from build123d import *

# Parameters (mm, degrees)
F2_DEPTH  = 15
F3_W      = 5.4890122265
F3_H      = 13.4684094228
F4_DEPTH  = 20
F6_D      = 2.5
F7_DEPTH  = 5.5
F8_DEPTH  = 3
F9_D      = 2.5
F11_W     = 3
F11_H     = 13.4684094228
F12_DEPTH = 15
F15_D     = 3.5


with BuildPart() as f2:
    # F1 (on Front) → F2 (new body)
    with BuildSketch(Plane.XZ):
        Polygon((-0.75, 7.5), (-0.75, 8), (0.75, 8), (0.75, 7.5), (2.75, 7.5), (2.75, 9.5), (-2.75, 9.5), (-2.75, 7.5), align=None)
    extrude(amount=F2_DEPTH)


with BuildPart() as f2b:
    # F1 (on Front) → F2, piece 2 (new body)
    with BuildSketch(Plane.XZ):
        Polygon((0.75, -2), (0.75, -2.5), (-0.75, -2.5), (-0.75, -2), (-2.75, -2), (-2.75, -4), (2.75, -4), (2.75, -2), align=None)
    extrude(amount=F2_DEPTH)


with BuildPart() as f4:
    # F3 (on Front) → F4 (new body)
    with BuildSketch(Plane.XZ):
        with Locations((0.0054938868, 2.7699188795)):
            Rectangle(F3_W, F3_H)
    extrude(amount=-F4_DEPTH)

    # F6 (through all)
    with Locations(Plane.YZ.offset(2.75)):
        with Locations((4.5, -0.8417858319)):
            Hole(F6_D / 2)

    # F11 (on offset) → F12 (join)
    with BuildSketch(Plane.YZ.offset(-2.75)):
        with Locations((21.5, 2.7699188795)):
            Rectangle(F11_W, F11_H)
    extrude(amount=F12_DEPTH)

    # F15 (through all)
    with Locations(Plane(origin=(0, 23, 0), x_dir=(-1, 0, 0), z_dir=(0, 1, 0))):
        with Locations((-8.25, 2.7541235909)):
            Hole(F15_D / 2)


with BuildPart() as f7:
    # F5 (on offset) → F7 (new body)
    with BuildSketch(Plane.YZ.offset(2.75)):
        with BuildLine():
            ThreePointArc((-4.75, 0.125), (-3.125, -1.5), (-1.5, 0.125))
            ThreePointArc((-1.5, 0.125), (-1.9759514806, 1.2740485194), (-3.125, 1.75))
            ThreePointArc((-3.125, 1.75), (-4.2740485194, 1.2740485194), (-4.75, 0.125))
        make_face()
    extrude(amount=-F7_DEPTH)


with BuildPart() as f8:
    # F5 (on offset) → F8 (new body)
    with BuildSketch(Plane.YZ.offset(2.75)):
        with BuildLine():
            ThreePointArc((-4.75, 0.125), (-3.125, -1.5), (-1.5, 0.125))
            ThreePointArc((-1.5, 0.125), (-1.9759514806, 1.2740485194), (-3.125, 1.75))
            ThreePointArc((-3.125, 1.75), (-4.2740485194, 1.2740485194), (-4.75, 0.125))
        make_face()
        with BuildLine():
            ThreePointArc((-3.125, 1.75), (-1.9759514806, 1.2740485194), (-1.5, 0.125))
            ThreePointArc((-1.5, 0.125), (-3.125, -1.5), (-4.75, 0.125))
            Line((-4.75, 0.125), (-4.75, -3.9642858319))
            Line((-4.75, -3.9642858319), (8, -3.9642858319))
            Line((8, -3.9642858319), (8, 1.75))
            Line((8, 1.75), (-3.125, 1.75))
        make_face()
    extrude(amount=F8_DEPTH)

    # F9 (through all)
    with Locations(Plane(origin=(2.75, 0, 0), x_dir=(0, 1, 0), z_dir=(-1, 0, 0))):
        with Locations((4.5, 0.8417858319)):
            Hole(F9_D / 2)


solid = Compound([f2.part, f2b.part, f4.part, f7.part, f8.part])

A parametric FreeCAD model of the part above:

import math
import FreeCAD as App
import Part
import Sketcher

V = App.Vector
Q = App.Units.Quantity


def add_polygon(sketch, points):
    """Adds a closed chain of lines whose ends are joined by coincident constraints."""
    first, n = sketch.GeometryCount, len(points)
    for a, b in zip(points, points[1:] + points[:1]):
        sketch.addGeometry(Part.LineSegment(App.Vector(*a, 0), App.Vector(*b, 0)), False)
    for i in range(n):
        sketch.addConstraint(Sketcher.Constraint("Coincident", first + i, 2, first + (i + 1) % n, 1))

doc = App.newDocument("Part")
body = doc.addObject("PartDesign::Body", "Body")

# Sketch on XZ plane
sketch1 = body.newObject("Sketcher::SketchObject", "Sketch")
sketch1.AttachmentSupport = (doc.getObject("XZ_Plane"), [""])
sketch1.MapMode = "FlatFace"
add_polygon(sketch1, [(-0.8, 7.5), (-0.8, 8), (0.8, 8), (0.8, 7.5), (2.8, 7.5), (2.8, 9.5), (-2.8, 9.5), (-2.8, 7.5)])  # lines 0-7
sketch1.addConstraint(Sketcher.Constraint("Vertical", 0))
sketch1.addConstraint(Sketcher.Constraint("Horizontal", 1))
sketch1.addConstraint(Sketcher.Constraint("Vertical", 2))
sketch1.addConstraint(Sketcher.Constraint("Horizontal", 3))
sketch1.addConstraint(Sketcher.Constraint("Vertical", 4))
sketch1.addConstraint(Sketcher.Constraint("Horizontal", 5))
sketch1.addConstraint(Sketcher.Constraint("Vertical", 6))
sketch1.addConstraint(Sketcher.Constraint("Horizontal", 7))
sketch1.addConstraint(Sketcher.Constraint("Symmetric", 3, 2, 6, 2, -2))
sketch1.addConstraint(Sketcher.Constraint("Equal", 3, 7))
sketch1.addConstraint(Sketcher.Constraint("Equal", 7, 4))
sketch1.addConstraint(Sketcher.Constraint("DistanceX", 3, 1, 3, 2, Q("2 mm")))
sketch1.addConstraint(Sketcher.Constraint("DistanceX", 1, 1, 1, 2, Q("1.5 mm")))
sketch1.addConstraint(Sketcher.Constraint("DistanceY", 0, 1, 0, 2, Q("0.5 mm")))
sketch1.addConstraint(Sketcher.Constraint("DistanceY", -1, 1, 0, 2, Q("8 mm")))
pad1 = body.newObject("PartDesign::Pad", "Pad")
pad1.Profile = sketch1
pad1.Length = 15
body2 = doc.addObject("PartDesign::Body", "Body001")

# Sketch on XZ plane
sketch2 = body2.newObject("Sketcher::SketchObject", "Sketch001")
sketch2.AttachmentSupport = (doc.getObject("XZ_Plane001"), [""])
sketch2.MapMode = "FlatFace"
add_polygon(sketch2, [(0.8, -2), (0.8, -2.5), (-0.8, -2.5), (-0.8, -2), (-2.8, -2), (-2.8, -4), (2.8, -4), (2.8, -2)])  # lines 0-7
sketch2.addConstraint(Sketcher.Constraint("Vertical", 0))
sketch2.addConstraint(Sketcher.Constraint("Horizontal", 1))
sketch2.addConstraint(Sketcher.Constraint("Vertical", 2))
sketch2.addConstraint(Sketcher.Constraint("Horizontal", 3))
sketch2.addConstraint(Sketcher.Constraint("Vertical", 4))
sketch2.addConstraint(Sketcher.Constraint("Horizontal", 5))
sketch2.addConstraint(Sketcher.Constraint("Vertical", 6))
sketch2.addConstraint(Sketcher.Constraint("Horizontal", 7))
sketch2.addConstraint(Sketcher.Constraint("Symmetric", 3, 2, 6, 2, -2))
sketch2.addConstraint(Sketcher.Constraint("Equal", 3, 7))
sketch2.addConstraint(Sketcher.Constraint("Equal", 7, 4))
sketch2.addConstraint(Sketcher.Constraint("DistanceX", 3, 2, 3, 1, Q("2 mm")))
sketch2.addConstraint(Sketcher.Constraint("DistanceX", 1, 2, 1, 1, Q("1.5 mm")))
sketch2.addConstraint(Sketcher.Constraint("DistanceY", 0, 2, 0, 1, Q("0.5 mm")))
sketch2.addConstraint(Sketcher.Constraint("DistanceY", 2, 2, -1, 1, Q("2 mm")))
pad2 = body2.newObject("PartDesign::Pad", "Pad001")
pad2.Profile = sketch2
pad2.Length = 15
body3 = doc.addObject("PartDesign::Body", "Body002")

# Sketch on XZ plane
sketch3 = body3.newObject("Sketcher::SketchObject", "Sketch002")
sketch3.AttachmentSupport = (doc.getObject("XZ_Plane002"), [""])
sketch3.MapMode = "FlatFace"
add_polygon(sketch3, [(-3, 10), (-3, -4), (3, -4), (3, 10)])  # lines 0-3
sketch3.addConstraint(Sketcher.Constraint("Vertical", 0))
sketch3.addConstraint(Sketcher.Constraint("Horizontal", 1))
sketch3.addConstraint(Sketcher.Constraint("Vertical", 2))
sketch3.addConstraint(Sketcher.Constraint("Horizontal", 3))
sketch3.addConstraint(Sketcher.Constraint("DistanceX", -1, 1, 1, 2, Q("2.75 mm")))
sketch3.addConstraint(Sketcher.Constraint("DistanceY", 0, 2, 0, 1, Q("13.468409 mm")))
sketch3.addConstraint(Sketcher.Constraint("DistanceX", 1, 1, 1, 2, Q("5.489012 mm")))
sketch3.addConstraint(Sketcher.Constraint("DistanceY", 0, 2, -1, 1, Q("3.964286 mm")))
pad3 = body3.newObject("PartDesign::Pad", "Pad002")
pad3.Profile = sketch3
pad3.Length = 20
pad3.Reversed = True

# Sketch on YZ plane
sketch4 = body3.newObject("Sketcher::SketchObject", "Sketch003")
sketch4.AttachmentSupport = (doc.getObject("YZ_Plane002"), [""])
sketch4.MapMode = "FlatFace"
sketch4.AttachmentOffset = App.Placement(V(0, 0, 2.75), App.Rotation())
sketch4.addGeometry(Part.Circle(V(4.5, -0.8, 0), V(0, 0, 1), 1.2), False)
sketch4.addConstraint(Sketcher.Constraint("Diameter", 0, Q("2.5 mm")))
sketch4.addConstraint(Sketcher.Constraint("DistanceX", -1, 1, 0, 3, Q("4.5 mm")))
sketch4.addConstraint(Sketcher.Constraint("DistanceY", 0, 3, -1, 1, Q("0.841786 mm")))
doc.recompute()
hole = body3.newObject("PartDesign::Hole", "Hole")
hole.Profile = sketch4
hole.ThreadType = "None"
hole.Diameter = 2.5
hole.DepthType = "ThroughAll"

# Sketch on YZ plane
sketch5 = body3.newObject("Sketcher::SketchObject", "Sketch004")
sketch5.AttachmentSupport = (doc.getObject("YZ_Plane002"), [""])
sketch5.MapMode = "FlatFace"
sketch5.AttachmentOffset = App.Placement(V(0, 0, -2.75), App.Rotation())
add_polygon(sketch5, [(20, 9.5), (20, -4), (23, -4), (23, 9.5)])  # lines 0-3
sketch5.addConstraint(Sketcher.Constraint("Vertical", 0))
sketch5.addConstraint(Sketcher.Constraint("Horizontal", 1))
sketch5.addConstraint(Sketcher.Constraint("Vertical", 2))
sketch5.addConstraint(Sketcher.Constraint("Horizontal", 3))
sketch5.addConstraint(Sketcher.Constraint("DistanceX", 1, 1, 1, 2, Q("3 mm")))
sketch5.addConstraint(Sketcher.Constraint("DistanceX", -1, 1, 0, 2, Q("20 mm")))
sketch5.addConstraint(Sketcher.Constraint("DistanceY", 0, 2, 0, 1, Q("13.468409 mm")))
sketch5.addConstraint(Sketcher.Constraint("DistanceY", 0, 2, -1, 1, Q("3.964286 mm")))
pad4 = body3.newObject("PartDesign::Pad", "Pad003")
pad4.Profile = sketch5
pad4.Length = 15

# Sketch on XZ plane
sketch6 = body3.newObject("Sketcher::SketchObject", "Sketch005")
sketch6.AttachmentSupport = (doc.getObject("XZ_Plane002"), [""])
sketch6.MapMode = "FlatFace"
sketch6.AttachmentOffset = App.Placement(V(0, 0, -23), App.Rotation())
sketch6.addGeometry(Part.Circle(V(8.2, 2.8, 0), V(0, 0, 1), 1.8), False)
sketch6.addConstraint(Sketcher.Constraint("Diameter", 0, Q("3.5 mm")))
sketch6.addConstraint(Sketcher.Constraint("DistanceX", -1, 1, 0, 3, Q("8.25 mm")))
sketch6.addConstraint(Sketcher.Constraint("DistanceY", -1, 1, 0, 3, Q("2.754124 mm")))
doc.recompute()
hole2 = body3.newObject("PartDesign::Hole", "Hole001")
hole2.Profile = sketch6
hole2.ThreadType = "None"
hole2.Diameter = 3.5
hole2.DepthType = "ThroughAll"
hole2.Reversed = True
body4 = doc.addObject("PartDesign::Body", "Body003")

# Sketch on YZ plane
sketch7 = body4.newObject("Sketcher::SketchObject", "Sketch006")
sketch7.AttachmentSupport = (doc.getObject("YZ_Plane003"), [""])
sketch7.MapMode = "FlatFace"
sketch7.AttachmentOffset = App.Placement(V(0, 0, 2.75), App.Rotation())
sketch7.addGeometry(Part.ArcOfCircle(Part.Circle(V(-3.1, 0.1, 0), V(0, 0, 1), 1.6), math.radians(180), math.radians(360)), False)
sketch7.addGeometry(Part.ArcOfCircle(Part.Circle(V(-3.1, 0.1, 0), V(0, 0, 1), 1.6), math.radians(0), math.radians(90)), False)
sketch7.addGeometry(Part.ArcOfCircle(Part.Circle(V(-3.1, 0.1, 0), V(0, 0, 1), 1.6), math.radians(90), math.radians(180)), False)
sketch7.addConstraint(Sketcher.Constraint("Tangent", 0, 2, 1, 1))
sketch7.addConstraint(Sketcher.Constraint("Tangent", 1, 2, 2, 1))
sketch7.addConstraint(Sketcher.Constraint("Tangent", 2, 2, 0, 1))
sketch7.addConstraint(Sketcher.Constraint("Horizontal", 2, 3, 0, 2))
sketch7.addConstraint(Sketcher.Constraint("Horizontal", 0, 2, 2, 2))
sketch7.addConstraint(Sketcher.Constraint("Vertical", 2, 3, 1, 2))
sketch7.addConstraint(Sketcher.Constraint("Radius", 0, Q("1.625 mm")))
sketch7.addConstraint(Sketcher.Constraint("DistanceX", 0, 2, -1, 1, Q("1.5 mm")))
sketch7.addConstraint(Sketcher.Constraint("DistanceY", -1, 1, 1, 2, Q("1.75 mm")))
pad5 = body4.newObject("PartDesign::Pad", "Pad004")
pad5.Profile = sketch7
pad5.Length = 5.5
pad5.Reversed = True
body5 = doc.addObject("PartDesign::Body", "Body004")

# Sketch on YZ plane
sketch8 = body5.newObject("Sketcher::SketchObject", "Sketch007")
sketch8.AttachmentSupport = (doc.getObject("YZ_Plane004"), [""])
sketch8.MapMode = "FlatFace"
sketch8.AttachmentOffset = App.Placement(V(0, 0, 2.75), App.Rotation())
sketch8.addGeometry(Part.ArcOfCircle(Part.Circle(V(-3.1, 0.1, 0), V(0, 0, 1), 1.6), math.radians(90), math.radians(180)), False)
sketch8.addGeometry(Part.LineSegment(V(-4.8, 0.1, 0), V(-4.8, -4, 0)), False)
sketch8.addGeometry(Part.LineSegment(V(-4.8, -4, 0), V(8, -4, 0)), False)
sketch8.addGeometry(Part.LineSegment(V(8, -4, 0), V(8, 1.8, 0)), False)
sketch8.addGeometry(Part.LineSegment(V(8, 1.8, 0), V(-3.1, 1.8, 0)), False)
sketch8.addConstraint(Sketcher.Constraint("Tangent", 0, 2, 1, 1))
sketch8.addConstraint(Sketcher.Constraint("Coincident", 1, 2, 2, 1))
sketch8.addConstraint(Sketcher.Constraint("Coincident", 2, 2, 3, 1))
sketch8.addConstraint(Sketcher.Constraint("Coincident", 3, 2, 4, 1))
sketch8.addConstraint(Sketcher.Constraint("Tangent", 4, 2, 0, 1))
sketch8.addConstraint(Sketcher.Constraint("Vertical", 1))
sketch8.addConstraint(Sketcher.Constraint("Horizontal", 2))
sketch8.addConstraint(Sketcher.Constraint("Vertical", 3))
sketch8.addConstraint(Sketcher.Constraint("Horizontal", 4))
sketch8.addConstraint(Sketcher.Constraint("DistanceX", -1, 1, 2, 2, Q("8 mm")))
sketch8.addConstraint(Sketcher.Constraint("Radius", 0, Q("1.625 mm")))
sketch8.addConstraint(Sketcher.Constraint("DistanceX", 2, 1, 2, 2, Q("12.75 mm")))
sketch8.addConstraint(Sketcher.Constraint("DistanceY", -1, 1, 3, 2, Q("1.75 mm")))
sketch8.addConstraint(Sketcher.Constraint("DistanceY", 1, 2, 1, 1, Q("4.089286 mm")))
pad6 = body5.newObject("PartDesign::Pad", "Pad005")
pad6.Profile = sketch8
pad6.Length = 3

# Sketch on YZ plane
sketch9 = body5.newObject("Sketcher::SketchObject", "Sketch008")
sketch9.AttachmentSupport = (doc.getObject("YZ_Plane004"), [""])
sketch9.MapMode = "FlatFace"
sketch9.AttachmentOffset = App.Placement(V(0, 0, 2.75), App.Rotation())
sketch9.addGeometry(Part.Circle(V(4.5, -0.8, 0), V(0, 0, 1), 1.2), False)
sketch9.addConstraint(Sketcher.Constraint("Diameter", 0, Q("2.5 mm")))
sketch9.addConstraint(Sketcher.Constraint("DistanceX", -1, 1, 0, 3, Q("4.5 mm")))
sketch9.addConstraint(Sketcher.Constraint("DistanceY", 0, 3, -1, 1, Q("0.841786 mm")))
doc.recompute()
hole3 = body5.newObject("PartDesign::Hole", "Hole002")
hole3.Profile = sketch9
hole3.ThreadType = "None"
hole3.Diameter = 2.5
hole3.DepthType = "ThroughAll"
hole3.Reversed = True

doc.recompute()
